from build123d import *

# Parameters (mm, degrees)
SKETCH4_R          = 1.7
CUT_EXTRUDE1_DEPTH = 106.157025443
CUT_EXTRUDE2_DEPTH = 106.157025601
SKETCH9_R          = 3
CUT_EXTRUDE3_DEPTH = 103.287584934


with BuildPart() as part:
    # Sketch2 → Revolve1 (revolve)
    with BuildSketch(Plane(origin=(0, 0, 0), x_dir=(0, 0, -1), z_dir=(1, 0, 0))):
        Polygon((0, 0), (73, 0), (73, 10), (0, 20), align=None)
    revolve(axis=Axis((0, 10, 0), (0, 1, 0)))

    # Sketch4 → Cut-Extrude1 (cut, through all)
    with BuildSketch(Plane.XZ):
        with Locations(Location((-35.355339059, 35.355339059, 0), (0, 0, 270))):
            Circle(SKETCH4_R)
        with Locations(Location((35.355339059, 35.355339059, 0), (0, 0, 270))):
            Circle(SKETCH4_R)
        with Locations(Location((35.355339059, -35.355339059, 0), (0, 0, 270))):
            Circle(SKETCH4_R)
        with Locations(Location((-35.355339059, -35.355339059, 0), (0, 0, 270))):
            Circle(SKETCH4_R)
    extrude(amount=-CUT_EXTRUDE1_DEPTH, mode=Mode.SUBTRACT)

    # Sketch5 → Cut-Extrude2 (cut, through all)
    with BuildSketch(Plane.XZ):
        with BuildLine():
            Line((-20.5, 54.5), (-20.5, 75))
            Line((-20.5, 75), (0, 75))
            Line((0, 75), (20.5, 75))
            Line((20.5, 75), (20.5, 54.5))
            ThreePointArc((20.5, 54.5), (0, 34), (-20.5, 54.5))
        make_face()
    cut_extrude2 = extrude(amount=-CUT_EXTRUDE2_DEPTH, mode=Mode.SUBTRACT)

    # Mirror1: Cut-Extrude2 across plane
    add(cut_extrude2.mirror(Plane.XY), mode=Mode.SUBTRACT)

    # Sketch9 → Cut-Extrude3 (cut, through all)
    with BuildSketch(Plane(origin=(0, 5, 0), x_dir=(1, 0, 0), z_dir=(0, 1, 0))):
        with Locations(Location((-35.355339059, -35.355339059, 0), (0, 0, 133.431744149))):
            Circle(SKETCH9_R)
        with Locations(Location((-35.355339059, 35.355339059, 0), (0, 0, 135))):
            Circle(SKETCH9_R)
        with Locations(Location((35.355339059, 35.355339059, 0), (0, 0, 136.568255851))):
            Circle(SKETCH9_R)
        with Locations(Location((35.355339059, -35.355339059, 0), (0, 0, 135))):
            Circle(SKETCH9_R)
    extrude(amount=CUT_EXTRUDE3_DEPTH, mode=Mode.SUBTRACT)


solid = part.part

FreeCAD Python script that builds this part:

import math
import FreeCAD as App
import Part
import Sketcher
from FreeCAD import Vector

doc = App.newDocument("Part")
params = doc.addObject("Spreadsheet::Sheet", "Params")
for row, (alias, value) in enumerate([
    ("sketch1_width", "10 mm"),
    ("sketch1_width2", "20 mm"),
    ("sketch1_height", "73 mm"),
    ("revolution_angle", "360 deg"),
    ("sketch2_diameter", "3.4 mm"),
    ("sketch3_radius", "20.5 mm"),
    ("sketch3_height", "20.5 mm"),
    ("sketch4_diameter", "6 mm"),
], start=1):
    params.set(f"A{row}", alias)
    params.set(f"B{row}", "=" + value)
    params.setAlias(f"B{row}", alias)

body = doc.addObject("PartDesign::Body", "Body")

# Sketch on YZ plane
sketch1 = doc.addObject("Sketcher::SketchObject", "Sketch")
body.addObject(sketch1)
sketch1.AttachmentSupport = (doc.YZ_Plane, [""])
sketch1.MapMode = "FlatFace"
sketch1.addGeometry(Part.LineSegment(Vector(0, 0, 0), Vector(0, -73, 0)), False)
sketch1.addGeometry(Part.LineSegment(Vector(0, -73, 0), Vector(10, -73, 0)), False)
sketch1.addGeometry(Part.LineSegment(Vector(10, -73, 0), Vector(20, 0, 0)), False)
sketch1.addGeometry(Part.LineSegment(Vector(20, 0, 0), Vector(0, 0, 0)), False)
sketch1.addConstraint(Sketcher.Constraint("Coincident", 0, 2, 1, 1))
sketch1.addConstraint(Sketcher.Constraint("Coincident", 1, 2, 2, 1))
sketch1.addConstraint(Sketcher.Constraint("Coincident", 2, 2, 3, 1))
sketch1.addConstraint(Sketcher.Constraint("Coincident", 3, 2, 0, 1))
sketch1.addConstraint(Sketcher.Constraint("Vertical", 0))
sketch1.addConstraint(Sketcher.Constraint("Horizontal", 1))
sketch1.addConstraint(Sketcher.Constraint("Horizontal", 3))
sketch1.addConstraint(Sketcher.Constraint("Coincident", 3, 2, -1, 1))
sketch1.addConstraint(Sketcher.Constraint("DistanceX", 1, 1, 1, 2, 10.0))
sketch1.addConstraint(Sketcher.Constraint("DistanceX", 3, 2, 3, 1, 20.0))
sketch1.addConstraint(Sketcher.Constraint("DistanceY", 0, 2, 0, 1, 73.0))
sketch1.setExpression("Constraints[8]", "Params.sketch1_width")
sketch1.setExpression("Constraints[9]", "Params.sketch1_width2")
sketch1.setExpression("Constraints[10]", "Params.sketch1_height")
revolution = doc.addObject("PartDesign::Revolution", "Revolution")
body.addObject(revolution)
revolution.Profile = sketch1
revolution.ReferenceAxis = (sketch1, ["H_Axis"])
revolution.setExpression("Angle", "Params.revolution_angle")

# Sketch on XZ plane
sketch2 = doc.addObject("Sketcher::SketchObject", "Sketch001")
body.addObject(sketch2)
sketch2.AttachmentSupport = (doc.XZ_Plane, [""])
sketch2.MapMode = "FlatFace"
sketch2.addGeometry(Part.Circle(Vector(-35.355339, 35.355339, 0), Vector(0, 0, 1), 1.7), False)
sketch2.addGeometry(Part.Circle(Vector(35.355339, 35.355339, 0), Vector(0, 0, 1), 1.7), False)
sketch2.addGeometry(Part.Circle(Vector(35.355339, -35.355339, 0), Vector(0, 0, 1), 1.7), False)
sketch2.addGeometry(Part.Circle(Vector(-35.355339, -35.355339, 0), Vector(0, 0, 1), 1.7), False)
sketch2.addConstraint(Sketcher.Constraint("Equal", 0, 1))
sketch2.addConstraint(Sketcher.Constraint("Equal", 1, 2))
sketch2.addConstraint(Sketcher.Constraint("Equal", 2, 3))
sketch2.addConstraint(Sketcher.Constraint("Symmetric", 0, 3, 2, 3, -1, 1))
sketch2.addConstraint(Sketcher.Constraint("Symmetric", 1, 3, 3, 3, -1, 1))
sketch2.addConstraint(Sketcher.Constraint("Symmetric", 0, 3, 1, 3, -2))
sketch2.addConstraint(Sketcher.Constraint("Diameter", 0, 3.4))
sketch2.addConstraint(Sketcher.Constraint("DistanceX", 0, 3, -1, 1, 35.355339))
sketch2.addConstraint(Sketcher.Constraint("DistanceY", -1, 1, 0, 3, 35.355339))
sketch2.setExpression("Constraints[6]", "Params.sketch2_diameter")
pocket1 = doc.addObject("PartDesign::Pocket", "Pocket")
body.addObject(pocket1)
pocket1.Profile = sketch2
pocket1.Type = "ThroughAll"

# Sketch on XZ plane
sketch3 = doc.addObject("Sketcher::SketchObject", "Sketch002")
body.addObject(sketch3)
sketch3.AttachmentSupport = (doc.XZ_Plane, [""])
sketch3.MapMode = "FlatFace"
sketch3.addGeometry(Part.LineSegment(Vector(-20.5, 75, 0), Vector(-20.5, 54.5, 0)), False)
sketch3.addGeometry(Part.ArcOfCircle(Part.Circle(Vector(0, 54.5, 0), Vector(0, 0, 1), 20.5), math.radians(180), math.radians(360)), False)
sketch3.addGeometry(Part.LineSegment(Vector(20.5, 54.5, 0), Vector(20.5, 75, 0)), False)
sketch3.addGeometry(Part.LineSegment(Vector(20.5, 75, 0), Vector(-20.5, 75, 0)), False)
sketch3.addConstraint(Sketcher.Constraint("Tangent", 0, 2, 1, 1))
sketch3.addConstraint(Sketcher.Constraint("Tangent", 1, 2, 2, 1))
sketch3.addConstraint(Sketcher.Constraint("Coincident", 2, 2, 3, 1))
sketch3.addConstraint(Sketcher.Constraint("Coincident", 3, 2, 0, 1))
sketch3.addConstraint(Sketcher.Constraint("Vertical", 0))
sketch3.addConstraint(Sketcher.Constraint("Vertical", 2))
sketch3.addConstraint(Sketcher.Constraint("Horizontal", 3))
sketch3.addConstraint(Sketcher.Constraint("PointOnObject", 1, 3, -2))
sketch3.addConstraint(Sketcher.Constraint("Radius", 1, 20.5))
sketch3.addConstraint(Sketcher.Constraint("DistanceY", 0, 2, 0, 1, 20.5))
sketch3.addConstraint(Sketcher.Constraint("DistanceY", -1, 1, 2, 2, 75.0))
sketch3.setExpression("Constraints[8]", "Params.sketch3_radius")
sketch3.setExpression("Constraints[9]", "Params.sketch3_height")
pocket2 = doc.addObject("PartDesign::Pocket", "Pocket001")
body.addObject(pocket2)
pocket2.Profile = sketch3
pocket2.Type = "ThroughAll"
doc.recompute()

mirrored = doc.addObject("PartDesign::Mirrored", "Mirrored")
body.addObject(mirrored)
mirrored.Originals = [pocket2]
mirrored.MirrorPlane = (doc.XY_Plane, [""])
body.Tip = mirrored

# Sketch on XZ plane
sketch4 = doc.addObject("Sketcher::SketchObject", "Sketch003")
body.addObject(sketch4)
sketch4.AttachmentSupport = (doc.XZ_Plane, [""])
sketch4.MapMode = "FlatFace"
sketch4.AttachmentOffset = App.Placement(Vector(0, 0, -5), App.Rotation())
sketch4.addGeometry(Part.Circle(Vector(-35.355339, 35.355339, 0), Vector(0, 0, 1), 3), False)
sketch4.addGeometry(Part.Circle(Vector(-35.355339, -35.355339, 0), Vector(0, 0, 1), 3), False)
sketch4.addGeometry(Part.Circle(Vector(35.355339, -35.355339, 0), Vector(0, 0, 1), 3), False)
sketch4.addGeometry(Part.Circle(Vector(35.355339, 35.355339, 0), Vector(0, 0, 1), 3), False)
sketch4.addConstraint(Sketcher.Constraint("Equal", 0, 1))
sketch4.addConstraint(Sketcher.Constraint("Equal", 1, 2))
sketch4.addConstraint(Sketcher.Constraint("Equal", 2, 3))
sketch4.addConstraint(Sketcher.Constraint("Symmetric", 0, 3, 2, 3, -1, 1))
sketch4.addConstraint(Sketcher.Constraint("Symmetric", 1, 3, 3, 3, -1, 1))
sketch4.addConstraint(Sketcher.Constraint("Symmetric", 1, 3, 2, 3, -2))
sketch4.addConstraint(Sketcher.Constraint("Diameter", 0, 6.0))
sketch4.addConstraint(Sketcher.Constraint("DistanceX", 0, 3, -1, 1, 35.355339))
sketch4.addConstraint(Sketcher.Constraint("DistanceY", -1, 1, 0, 3, 35.355339))
sketch4.setExpression("Constraints[6]", "Params.sketch4_diameter")
pocket3 = doc.addObject("PartDesign::Pocket", "Pocket002")
body.addObject(pocket3)
pocket3.Profile = sketch4
pocket3.Type = "ThroughAll"

doc.recompute()
